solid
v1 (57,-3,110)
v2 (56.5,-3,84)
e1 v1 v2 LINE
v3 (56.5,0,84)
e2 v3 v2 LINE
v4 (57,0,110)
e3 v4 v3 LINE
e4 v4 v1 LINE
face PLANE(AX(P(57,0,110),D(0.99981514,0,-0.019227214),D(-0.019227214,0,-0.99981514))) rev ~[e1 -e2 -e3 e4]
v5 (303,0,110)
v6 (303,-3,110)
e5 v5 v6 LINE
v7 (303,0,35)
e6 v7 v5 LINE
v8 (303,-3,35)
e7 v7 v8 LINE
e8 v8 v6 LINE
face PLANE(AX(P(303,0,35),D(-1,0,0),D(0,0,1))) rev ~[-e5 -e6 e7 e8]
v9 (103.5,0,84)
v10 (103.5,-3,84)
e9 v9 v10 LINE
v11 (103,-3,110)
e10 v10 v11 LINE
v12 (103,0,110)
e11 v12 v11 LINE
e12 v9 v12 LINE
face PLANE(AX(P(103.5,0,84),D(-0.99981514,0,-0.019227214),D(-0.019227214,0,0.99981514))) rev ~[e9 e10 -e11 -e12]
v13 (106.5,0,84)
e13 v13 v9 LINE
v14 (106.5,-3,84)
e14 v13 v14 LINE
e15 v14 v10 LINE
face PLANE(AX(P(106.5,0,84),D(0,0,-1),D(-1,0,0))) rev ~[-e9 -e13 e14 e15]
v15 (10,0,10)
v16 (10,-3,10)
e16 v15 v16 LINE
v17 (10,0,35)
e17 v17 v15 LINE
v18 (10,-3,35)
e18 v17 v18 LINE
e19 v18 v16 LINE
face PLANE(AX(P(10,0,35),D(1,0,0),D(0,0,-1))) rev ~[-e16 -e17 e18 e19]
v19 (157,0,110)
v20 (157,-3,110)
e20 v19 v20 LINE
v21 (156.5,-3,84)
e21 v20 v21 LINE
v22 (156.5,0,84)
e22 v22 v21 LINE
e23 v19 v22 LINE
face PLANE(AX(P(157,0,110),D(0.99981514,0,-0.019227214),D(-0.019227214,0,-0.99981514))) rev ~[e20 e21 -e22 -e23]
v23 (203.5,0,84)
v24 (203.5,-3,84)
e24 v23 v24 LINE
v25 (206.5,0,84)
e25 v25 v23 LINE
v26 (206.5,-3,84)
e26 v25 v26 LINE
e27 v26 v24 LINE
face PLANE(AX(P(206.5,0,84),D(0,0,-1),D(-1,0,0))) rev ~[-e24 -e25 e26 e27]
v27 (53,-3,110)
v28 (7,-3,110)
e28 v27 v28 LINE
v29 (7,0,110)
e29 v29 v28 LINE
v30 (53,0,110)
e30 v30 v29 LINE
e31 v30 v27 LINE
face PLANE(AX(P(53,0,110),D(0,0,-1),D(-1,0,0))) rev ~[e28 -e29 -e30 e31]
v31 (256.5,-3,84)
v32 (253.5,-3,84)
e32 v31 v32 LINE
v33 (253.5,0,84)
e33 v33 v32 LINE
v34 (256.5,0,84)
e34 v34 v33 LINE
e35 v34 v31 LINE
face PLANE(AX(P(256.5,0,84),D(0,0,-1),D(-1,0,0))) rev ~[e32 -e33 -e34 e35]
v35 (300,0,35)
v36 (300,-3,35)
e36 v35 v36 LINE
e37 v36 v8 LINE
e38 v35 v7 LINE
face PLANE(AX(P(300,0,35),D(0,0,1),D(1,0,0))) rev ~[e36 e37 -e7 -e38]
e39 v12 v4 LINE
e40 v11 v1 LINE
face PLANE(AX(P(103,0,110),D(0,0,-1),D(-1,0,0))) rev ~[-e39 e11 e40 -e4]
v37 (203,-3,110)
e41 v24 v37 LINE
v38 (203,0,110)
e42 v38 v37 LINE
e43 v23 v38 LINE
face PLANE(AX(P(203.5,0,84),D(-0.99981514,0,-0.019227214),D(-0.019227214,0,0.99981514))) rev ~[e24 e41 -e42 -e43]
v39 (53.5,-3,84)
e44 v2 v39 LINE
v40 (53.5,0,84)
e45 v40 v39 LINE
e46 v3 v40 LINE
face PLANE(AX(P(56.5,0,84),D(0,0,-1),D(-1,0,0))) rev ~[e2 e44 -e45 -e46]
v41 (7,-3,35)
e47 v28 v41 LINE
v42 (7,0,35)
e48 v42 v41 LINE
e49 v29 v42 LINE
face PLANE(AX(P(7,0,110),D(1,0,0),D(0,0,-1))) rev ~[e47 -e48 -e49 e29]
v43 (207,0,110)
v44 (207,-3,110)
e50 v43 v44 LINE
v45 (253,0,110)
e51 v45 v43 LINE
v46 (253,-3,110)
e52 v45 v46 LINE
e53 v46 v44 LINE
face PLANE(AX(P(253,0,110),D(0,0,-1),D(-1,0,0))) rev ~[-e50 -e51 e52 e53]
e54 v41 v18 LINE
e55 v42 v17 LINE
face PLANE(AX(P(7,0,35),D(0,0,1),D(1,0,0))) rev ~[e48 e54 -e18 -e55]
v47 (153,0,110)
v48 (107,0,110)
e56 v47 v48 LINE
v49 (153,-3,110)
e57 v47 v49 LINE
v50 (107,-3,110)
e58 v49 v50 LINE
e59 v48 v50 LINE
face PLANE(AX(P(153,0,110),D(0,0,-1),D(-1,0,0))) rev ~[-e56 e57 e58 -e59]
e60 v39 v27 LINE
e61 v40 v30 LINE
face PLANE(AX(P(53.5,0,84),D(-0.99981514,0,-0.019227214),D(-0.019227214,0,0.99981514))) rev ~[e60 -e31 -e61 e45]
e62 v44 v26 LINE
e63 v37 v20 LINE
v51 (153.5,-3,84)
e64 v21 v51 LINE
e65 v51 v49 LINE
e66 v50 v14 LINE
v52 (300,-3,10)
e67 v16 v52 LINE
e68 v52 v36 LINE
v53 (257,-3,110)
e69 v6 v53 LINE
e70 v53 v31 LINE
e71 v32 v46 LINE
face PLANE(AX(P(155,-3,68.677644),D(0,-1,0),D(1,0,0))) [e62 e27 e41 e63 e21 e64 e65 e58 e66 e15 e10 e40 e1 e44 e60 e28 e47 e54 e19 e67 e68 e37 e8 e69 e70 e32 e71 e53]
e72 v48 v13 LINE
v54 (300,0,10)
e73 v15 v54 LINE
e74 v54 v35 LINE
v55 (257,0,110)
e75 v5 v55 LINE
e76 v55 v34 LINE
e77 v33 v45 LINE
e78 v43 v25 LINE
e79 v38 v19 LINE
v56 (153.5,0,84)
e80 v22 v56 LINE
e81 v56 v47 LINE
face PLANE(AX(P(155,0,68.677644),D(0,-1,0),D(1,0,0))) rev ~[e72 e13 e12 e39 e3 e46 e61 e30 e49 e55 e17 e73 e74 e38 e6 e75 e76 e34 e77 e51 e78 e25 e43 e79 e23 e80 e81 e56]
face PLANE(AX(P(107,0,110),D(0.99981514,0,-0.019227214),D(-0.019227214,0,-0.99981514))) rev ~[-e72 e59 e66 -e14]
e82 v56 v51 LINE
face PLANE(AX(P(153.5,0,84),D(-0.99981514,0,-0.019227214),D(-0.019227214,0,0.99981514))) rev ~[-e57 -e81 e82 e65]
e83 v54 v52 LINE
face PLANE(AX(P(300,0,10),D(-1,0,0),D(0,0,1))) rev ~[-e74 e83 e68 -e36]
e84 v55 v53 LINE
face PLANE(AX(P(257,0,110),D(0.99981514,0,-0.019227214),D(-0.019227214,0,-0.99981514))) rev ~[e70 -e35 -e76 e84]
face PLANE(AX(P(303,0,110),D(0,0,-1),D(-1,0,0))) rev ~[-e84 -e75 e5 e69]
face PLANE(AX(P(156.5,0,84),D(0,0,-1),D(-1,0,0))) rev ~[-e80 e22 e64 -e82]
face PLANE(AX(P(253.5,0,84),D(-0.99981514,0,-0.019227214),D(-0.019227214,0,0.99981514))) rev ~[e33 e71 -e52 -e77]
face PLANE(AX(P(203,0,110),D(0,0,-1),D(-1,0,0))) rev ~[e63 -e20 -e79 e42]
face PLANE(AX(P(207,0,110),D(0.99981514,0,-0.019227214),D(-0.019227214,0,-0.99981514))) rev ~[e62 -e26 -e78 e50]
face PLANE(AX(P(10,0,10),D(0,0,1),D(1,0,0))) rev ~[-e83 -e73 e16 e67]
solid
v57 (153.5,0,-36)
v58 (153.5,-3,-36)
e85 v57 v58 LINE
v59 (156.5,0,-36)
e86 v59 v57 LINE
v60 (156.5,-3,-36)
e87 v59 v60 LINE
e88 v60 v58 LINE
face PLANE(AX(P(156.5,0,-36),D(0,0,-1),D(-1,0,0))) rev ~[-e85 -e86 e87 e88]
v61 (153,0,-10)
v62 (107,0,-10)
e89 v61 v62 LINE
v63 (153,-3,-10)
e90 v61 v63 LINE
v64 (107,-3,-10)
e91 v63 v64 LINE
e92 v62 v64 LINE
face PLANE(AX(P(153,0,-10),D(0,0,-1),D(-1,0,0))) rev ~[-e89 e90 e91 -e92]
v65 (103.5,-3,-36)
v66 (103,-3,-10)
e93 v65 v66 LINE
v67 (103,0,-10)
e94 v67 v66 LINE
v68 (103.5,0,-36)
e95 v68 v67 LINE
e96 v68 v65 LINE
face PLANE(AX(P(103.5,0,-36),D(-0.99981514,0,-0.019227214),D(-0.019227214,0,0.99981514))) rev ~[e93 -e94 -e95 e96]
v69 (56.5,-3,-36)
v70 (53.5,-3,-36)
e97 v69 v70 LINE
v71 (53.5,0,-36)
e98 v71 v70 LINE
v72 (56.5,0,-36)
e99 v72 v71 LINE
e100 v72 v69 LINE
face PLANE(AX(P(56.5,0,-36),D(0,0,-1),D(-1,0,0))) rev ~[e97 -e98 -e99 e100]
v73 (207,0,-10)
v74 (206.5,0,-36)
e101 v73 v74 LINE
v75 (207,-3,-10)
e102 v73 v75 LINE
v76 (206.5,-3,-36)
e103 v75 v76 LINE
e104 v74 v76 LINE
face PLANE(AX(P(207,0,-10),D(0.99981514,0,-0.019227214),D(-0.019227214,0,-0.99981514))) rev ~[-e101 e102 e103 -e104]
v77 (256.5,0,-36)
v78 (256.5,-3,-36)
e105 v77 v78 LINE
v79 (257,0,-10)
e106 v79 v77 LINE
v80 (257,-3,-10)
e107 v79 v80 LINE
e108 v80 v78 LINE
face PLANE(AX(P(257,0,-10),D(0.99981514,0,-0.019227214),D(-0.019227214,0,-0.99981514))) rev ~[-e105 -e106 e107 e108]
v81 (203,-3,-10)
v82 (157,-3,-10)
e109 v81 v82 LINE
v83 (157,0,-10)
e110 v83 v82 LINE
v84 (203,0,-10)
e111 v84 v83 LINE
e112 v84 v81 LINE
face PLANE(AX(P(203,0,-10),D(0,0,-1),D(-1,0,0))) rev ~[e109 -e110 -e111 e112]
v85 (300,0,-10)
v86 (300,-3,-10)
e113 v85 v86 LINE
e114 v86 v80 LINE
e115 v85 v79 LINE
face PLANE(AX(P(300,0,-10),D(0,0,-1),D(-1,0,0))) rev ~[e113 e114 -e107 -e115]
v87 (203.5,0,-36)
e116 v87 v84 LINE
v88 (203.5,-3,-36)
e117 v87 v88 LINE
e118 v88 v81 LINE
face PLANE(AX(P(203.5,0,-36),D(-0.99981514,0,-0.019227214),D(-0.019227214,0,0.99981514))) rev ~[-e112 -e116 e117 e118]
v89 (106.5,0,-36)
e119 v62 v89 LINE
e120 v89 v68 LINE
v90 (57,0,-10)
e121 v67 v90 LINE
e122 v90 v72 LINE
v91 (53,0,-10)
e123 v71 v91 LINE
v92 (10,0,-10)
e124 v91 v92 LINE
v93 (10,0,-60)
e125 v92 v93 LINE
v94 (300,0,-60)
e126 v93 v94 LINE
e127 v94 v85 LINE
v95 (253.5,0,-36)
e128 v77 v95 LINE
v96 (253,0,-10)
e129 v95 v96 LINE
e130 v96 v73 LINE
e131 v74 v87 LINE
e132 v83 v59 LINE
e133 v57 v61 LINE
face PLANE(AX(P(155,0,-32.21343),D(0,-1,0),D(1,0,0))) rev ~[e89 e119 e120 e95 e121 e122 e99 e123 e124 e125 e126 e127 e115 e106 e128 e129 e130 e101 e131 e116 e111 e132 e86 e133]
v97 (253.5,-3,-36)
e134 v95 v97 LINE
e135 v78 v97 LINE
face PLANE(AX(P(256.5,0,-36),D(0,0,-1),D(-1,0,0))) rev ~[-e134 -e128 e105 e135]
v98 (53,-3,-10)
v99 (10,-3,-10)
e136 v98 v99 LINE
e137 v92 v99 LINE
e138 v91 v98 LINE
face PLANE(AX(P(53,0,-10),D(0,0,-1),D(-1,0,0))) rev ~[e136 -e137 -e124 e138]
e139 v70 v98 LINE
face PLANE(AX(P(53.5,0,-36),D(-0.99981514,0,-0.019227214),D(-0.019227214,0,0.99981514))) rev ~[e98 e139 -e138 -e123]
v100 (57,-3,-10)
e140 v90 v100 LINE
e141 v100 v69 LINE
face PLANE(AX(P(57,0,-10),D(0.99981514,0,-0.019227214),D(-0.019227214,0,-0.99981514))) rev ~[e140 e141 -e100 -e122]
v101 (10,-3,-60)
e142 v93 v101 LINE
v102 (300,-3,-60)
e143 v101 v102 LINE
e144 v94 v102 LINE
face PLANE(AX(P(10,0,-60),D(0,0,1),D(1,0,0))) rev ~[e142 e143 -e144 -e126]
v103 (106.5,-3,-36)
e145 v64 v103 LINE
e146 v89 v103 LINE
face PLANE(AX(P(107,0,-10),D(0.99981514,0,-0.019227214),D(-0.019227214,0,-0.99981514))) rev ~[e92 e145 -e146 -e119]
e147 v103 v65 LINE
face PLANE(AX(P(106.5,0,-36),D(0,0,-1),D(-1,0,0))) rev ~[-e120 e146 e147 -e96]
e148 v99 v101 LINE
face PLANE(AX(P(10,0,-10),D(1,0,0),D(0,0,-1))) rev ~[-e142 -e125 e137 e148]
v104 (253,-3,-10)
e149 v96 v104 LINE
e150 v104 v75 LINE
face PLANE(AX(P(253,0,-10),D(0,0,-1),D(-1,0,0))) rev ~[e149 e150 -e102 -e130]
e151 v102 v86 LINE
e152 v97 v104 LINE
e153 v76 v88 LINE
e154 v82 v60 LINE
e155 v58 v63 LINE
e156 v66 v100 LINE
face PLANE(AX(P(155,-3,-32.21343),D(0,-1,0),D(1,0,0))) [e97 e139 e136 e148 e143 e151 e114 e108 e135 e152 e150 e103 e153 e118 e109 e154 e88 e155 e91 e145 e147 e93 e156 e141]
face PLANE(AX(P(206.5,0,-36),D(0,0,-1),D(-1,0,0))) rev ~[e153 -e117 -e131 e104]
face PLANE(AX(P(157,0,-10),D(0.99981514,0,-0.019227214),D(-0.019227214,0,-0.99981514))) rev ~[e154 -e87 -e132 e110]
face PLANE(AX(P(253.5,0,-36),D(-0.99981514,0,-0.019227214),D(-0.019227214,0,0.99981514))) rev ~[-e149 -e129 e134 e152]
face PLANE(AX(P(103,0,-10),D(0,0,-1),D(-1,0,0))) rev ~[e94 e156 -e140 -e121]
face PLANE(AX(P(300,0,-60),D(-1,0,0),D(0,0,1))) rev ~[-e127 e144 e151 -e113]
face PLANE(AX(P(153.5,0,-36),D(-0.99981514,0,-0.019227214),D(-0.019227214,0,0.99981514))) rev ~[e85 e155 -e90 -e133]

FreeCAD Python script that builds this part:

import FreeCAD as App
import Part
import Sketcher
from FreeCAD import Vector

doc = App.newDocument("Part")
params = doc.addObject("Spreadsheet::Sheet", "Params")
for row, (alias, value) in enumerate([
    ("sketch1_width", "290 mm"),
    ("sketch1_width2", "3 mm"),
    ("sketch1_width3", "46 mm"),
    ("sketch1_height", "25 mm"),
    ("sketch1_height2", "75 mm"),
    ("pad1_length", "3 mm"),
    ("sketch2_width", "290 mm"),
    ("sketch2_width2", "43 mm"),
    ("sketch2_width3", "3 mm"),
    ("sketch2_width4", "46 mm"),
    ("sketch2_height", "50 mm"),
    ("pad2_length", "3 mm"),
], start=1):
    params.set(f"A{row}", alias)
    params.set(f"B{row}", "=" + value)
    params.setAlias(f"B{row}", alias)

body = doc.addObject("PartDesign::Body", "Body")

sketch1 = body.newObject("Sketcher::SketchObject", "Sketch")
sketch1.AttachmentSupport = (doc.getObject("XZ_Plane"), [""])
sketch1.MapMode = "FlatFace"
sketch1.addGeometry([
    Part.LineSegment(Vector(10, 10, 0), Vector(300, 10, 0)),
    Part.LineSegment(Vector(300, 10, 0), Vector(300, 35, 0)),
    Part.LineSegment(Vector(300, 35, 0), Vector(303, 35, 0)),
    Part.LineSegment(Vector(303, 35, 0), Vector(303, 110, 0)),
    Part.LineSegment(Vector(303, 110, 0), Vector(257, 110, 0)),
    Part.LineSegment(Vector(257, 110, 0), Vector(256.5, 84, 0)),
    Part.LineSegment(Vector(256.5, 84, 0), Vector(253.5, 84, 0)),
    Part.LineSegment(Vector(253.5, 84, 0), Vector(253, 110, 0)),
    Part.LineSegment(Vector(253, 110, 0), Vector(207, 110, 0)),
    Part.LineSegment(Vector(207, 110, 0), Vector(206.5, 84, 0)),
    Part.LineSegment(Vector(206.5, 84, 0), Vector(203.5, 84, 0)),
    Part.LineSegment(Vector(203.5, 84, 0), Vector(203, 110, 0)),
    Part.LineSegment(Vector(203, 110, 0), Vector(157, 110, 0)),
    Part.LineSegment(Vector(157, 110, 0), Vector(156.5, 84, 0)),
    Part.LineSegment(Vector(156.5, 84, 0), Vector(153.5, 84, 0)),
    Part.LineSegment(Vector(153.5, 84, 0), Vector(153, 110, 0)),
    Part.LineSegment(Vector(153, 110, 0), Vector(107, 110, 0)),
    Part.LineSegment(Vector(107, 110, 0), Vector(106.5, 84, 0)),
    Part.LineSegment(Vector(106.5, 84, 0), Vector(103.5, 84, 0)),
    Part.LineSegment(Vector(103.5, 84, 0), Vector(103, 110, 0)),
    Part.LineSegment(Vector(103, 110, 0), Vector(57, 110, 0)),
    Part.LineSegment(Vector(57, 110, 0), Vector(56.5, 84, 0)),
    Part.LineSegment(Vector(56.5, 84, 0), Vector(53.5, 84, 0)),
    Part.LineSegment(Vector(53.5, 84, 0), Vector(53, 110, 0)),
    Part.LineSegment(Vector(53, 110, 0), Vector(7, 110, 0)),
    Part.LineSegment(Vector(7, 110, 0), Vector(7, 35, 0)),
    Part.LineSegment(Vector(7, 35, 0), Vector(10, 35, 0)),
    Part.LineSegment(Vector(10, 35, 0), Vector(10, 10, 0)),
], False)
sketch1.addConstraint([
    Sketcher.Constraint("Coincident", 0, 2, 1, 1),
    Sketcher.Constraint("Coincident", 1, 2, 2, 1),
    Sketcher.Constraint("Coincident", 2, 2, 3, 1),
    Sketcher.Constraint("Coincident", 3, 2, 4, 1),
    Sketcher.Constraint("Coincident", 4, 2, 5, 1),
    Sketcher.Constraint("Coincident", 5, 2, 6, 1),
    Sketcher.Constraint("Coincident", 6, 2, 7, 1),
    Sketcher.Constraint("Coincident", 7, 2, 8, 1),
    Sketcher.Constraint("Coincident", 8, 2, 9, 1),
    Sketcher.Constraint("Coincident", 9, 2, 10, 1),
    Sketcher.Constraint("Coincident", 10, 2, 11, 1),
    Sketcher.Constraint("Coincident", 11, 2, 12, 1),
    Sketcher.Constraint("Coincident", 12, 2, 13, 1),
    Sketcher.Constraint("Coincident", 13, 2, 14, 1),
    Sketcher.Constraint("Coincident", 14, 2, 15, 1),
    Sketcher.Constraint("Coincident", 15, 2, 16, 1),
    Sketcher.Constraint("Coincident", 16, 2, 17, 1),
    Sketcher.Constraint("Coincident", 17, 2, 18, 1),
    Sketcher.Constraint("Coincident", 18, 2, 19, 1),
    Sketcher.Constraint("Coincident", 19, 2, 20, 1),
    Sketcher.Constraint("Coincident", 20, 2, 21, 1),
    Sketcher.Constraint("Coincident", 21, 2, 22, 1),
    Sketcher.Constraint("Coincident", 22, 2, 23, 1),
    Sketcher.Constraint("Coincident", 23, 2, 24, 1),
    Sketcher.Constraint("Coincident", 24, 2, 25, 1),
    Sketcher.Constraint("Coincident", 25, 2, 26, 1),
    Sketcher.Constraint("Coincident", 26, 2, 27, 1),
    Sketcher.Constraint("Coincident", 27, 2, 0, 1),
    Sketcher.Constraint("Horizontal", 0),
    Sketcher.Constraint("Vertical", 1),
    Sketcher.Constraint("Horizontal", 2),
    Sketcher.Constraint("Vertical", 3),
    Sketcher.Constraint("Horizontal", 4),
    Sketcher.Constraint("Horizontal", 6),
    Sketcher.Constraint("Horizontal", 8),
    Sketcher.Constraint("Horizontal", 10),
    Sketcher.Constraint("Horizontal", 12),
    Sketcher.Constraint("Horizontal", 14),
    Sketcher.Constraint("Horizontal", 16),
    Sketcher.Constraint("Horizontal", 18),
    Sketcher.Constraint("Horizontal", 20),
    Sketcher.Constraint("Horizontal", 22),
    Sketcher.Constraint("Horizontal", 24),
    Sketcher.Constraint("Vertical", 25),
    Sketcher.Constraint("Horizontal", 26),
    Sketcher.Constraint("Vertical", 27),
    Sketcher.Constraint("Parallel", 5, 9),
    Sketcher.Constraint("Parallel", 7, 11),
    Sketcher.Constraint("Parallel", 9, 13),
    Sketcher.Constraint("Parallel", 11, 15),
    Sketcher.Constraint("Parallel", 13, 17),
    Sketcher.Constraint("Parallel", 15, 19),
    Sketcher.Constraint("Parallel", 17, 21),
    Sketcher.Constraint("Parallel", 19, 23),
    Sketcher.Constraint("Horizontal", 4, 2, 7, 2),
    Sketcher.Constraint("Horizontal", 6, 2, 9, 2),
    Sketcher.Constraint("Horizontal", 8, 2, 11, 2),
    Sketcher.Constraint("Horizontal", 10, 2, 13, 2),
    Sketcher.Constraint("Horizontal", 12, 2, 15, 2),
    Sketcher.Constraint("Horizontal", 14, 2, 17, 2),
    Sketcher.Constraint("Horizontal", 16, 2, 19, 2),
    Sketcher.Constraint("Horizontal", 18, 2, 21, 2),
    Sketcher.Constraint("Horizontal", 20, 2, 23, 2),
    Sketcher.Constraint("Horizontal", 2, 2, 25, 2),
    Sketcher.Constraint("Equal", 2, 6),
    Sketcher.Constraint("Equal", 4, 8),
    Sketcher.Constraint("Equal", 6, 10),
    Sketcher.Constraint("Equal", 8, 12),
    Sketcher.Constraint("Equal", 10, 14),
    Sketcher.Constraint("Equal", 12, 16),
    Sketcher.Constraint("Equal", 14, 18),
    Sketcher.Constraint("Equal", 16, 20),
    Sketcher.Constraint("Equal", 18, 22),
    Sketcher.Constraint("Equal", 20, 24),
    Sketcher.Constraint("Equal", 22, 26),
    Sketcher.Constraint("Equal", 5, 7),
    Sketcher.Constraint("DistanceX", 0, 1, 0, 2, 290.0),
    Sketcher.Constraint("DistanceX", 2, 1, 2, 2, 3.0),
    Sketcher.Constraint("DistanceX", 4, 2, 4, 1, 46.0),
    Sketcher.Constraint("DistanceY", 1, 1, 1, 2, 25.0),
    Sketcher.Constraint("DistanceY", 3, 1, 3, 2, 75.0),
    Sketcher.Constraint("DistanceX", -1, 1, 0, 2, 300.0),
    Sketcher.Constraint("DistanceY", -1, 1, 0, 2, 10.0),
    Sketcher.Constraint("DistanceY", -1, 1, 5, 2, 84.0),
])
sketch1.setExpression("Constraints[76]", "Params.sketch1_width")
sketch1.setExpression("Constraints[77]", "Params.sketch1_width2")
sketch1.setExpression("Constraints[78]", "Params.sketch1_width3")
sketch1.setExpression("Constraints[79]", "Params.sketch1_height")
sketch1.setExpression("Constraints[80]", "Params.sketch1_height2")
pad1 = body.newObject("PartDesign::Pad", "Pad")
pad1.Profile = sketch1
pad1.setExpression("Length", "Params.pad1_length")
body2 = doc.addObject("PartDesign::Body", "Body001")

sketch2 = body2.newObject("Sketcher::SketchObject", "Sketch001")
sketch2.AttachmentSupport = (doc.getObject("XZ_Plane001"), [""])
sketch2.MapMode = "FlatFace"
sketch2.addGeometry([
    Part.LineSegment(Vector(10, -10, 0), Vector(10, -60, 0)),
    Part.LineSegment(Vector(10, -60, 0), Vector(300, -60, 0)),
    Part.LineSegment(Vector(300, -60, 0), Vector(300, -10, 0)),
    Part.LineSegment(Vector(300, -10, 0), Vector(257, -10, 0)),
    Part.LineSegment(Vector(257, -10, 0), Vector(256.5, -36, 0)),
    Part.LineSegment(Vector(256.5, -36, 0), Vector(253.5, -36, 0)),
    Part.LineSegment(Vector(253.5, -36, 0), Vector(253, -10, 0)),
    Part.LineSegment(Vector(253, -10, 0), Vector(207, -10, 0)),
    Part.LineSegment(Vector(207, -10, 0), Vector(206.5, -36, 0)),
    Part.LineSegment(Vector(206.5, -36, 0), Vector(203.5, -36, 0)),
    Part.LineSegment(Vector(203.5, -36, 0), Vector(203, -10, 0)),
    Part.LineSegment(Vector(203, -10, 0), Vector(157, -10, 0)),
    Part.LineSegment(Vector(157, -10, 0), Vector(156.5, -36, 0)),
    Part.LineSegment(Vector(156.5, -36, 0), Vector(153.5, -36, 0)),
    Part.LineSegment(Vector(153.5, -36, 0), Vector(153, -10, 0)),
    Part.LineSegment(Vector(153, -10, 0), Vector(107, -10, 0)),
    Part.LineSegment(Vector(107, -10, 0), Vector(106.5, -36, 0)),
    Part.LineSegment(Vector(106.5, -36, 0), Vector(103.5, -36, 0)),
    Part.LineSegment(Vector(103.5, -36, 0), Vector(103, -10, 0)),
    Part.LineSegment(Vector(103, -10, 0), Vector(57, -10, 0)),
    Part.LineSegment(Vector(57, -10, 0), Vector(56.5, -36, 0)),
    Part.LineSegment(Vector(56.5, -36, 0), Vector(53.5, -36, 0)),
    Part.LineSegment(Vector(53.5, -36, 0), Vector(53, -10, 0)),
    Part.LineSegment(Vector(53, -10, 0), Vector(10, -10, 0)),
], False)
sketch2.addConstraint([
    Sketcher.Constraint("Coincident", 0, 2, 1, 1),
    Sketcher.Constraint("Coincident", 1, 2, 2, 1),
    Sketcher.Constraint("Coincident", 2, 2, 3, 1),
    Sketcher.Constraint("Coincident", 3, 2, 4, 1),
    Sketcher.Constraint("Coincident", 4, 2, 5, 1),
    Sketcher.Constraint("Coincident", 5, 2, 6, 1),
    Sketcher.Constraint("Coincident", 6, 2, 7, 1),
    Sketcher.Constraint("Coincident", 7, 2, 8, 1),
    Sketcher.Constraint("Coincident", 8, 2, 9, 1),
    Sketcher.Constraint("Coincident", 9, 2, 10, 1),
    Sketcher.Constraint("Coincident", 10, 2, 11, 1),
    Sketcher.Constraint("Coincident", 11, 2, 12, 1),
    Sketcher.Constraint("Coincident", 12, 2, 13, 1),
    Sketcher.Constraint("Coincident", 13, 2, 14, 1),
    Sketcher.Constraint("Coincident", 14, 2, 15, 1),
    Sketcher.Constraint("Coincident", 15, 2, 16, 1),
    Sketcher.Constraint("Coincident", 16, 2, 17, 1),
    Sketcher.Constraint("Coincident", 17, 2, 18, 1),
    Sketcher.Constraint("Coincident", 18, 2, 19, 1),
    Sketcher.Constraint("Coincident", 19, 2, 20, 1),
    Sketcher.Constraint("Coincident", 20, 2, 21, 1),
    Sketcher.Constraint("Coincident", 21, 2, 22, 1),
    Sketcher.Constraint("Coincident", 22, 2, 23, 1),
    Sketcher.Constraint("Coincident", 23, 2, 0, 1),
    Sketcher.Constraint("Vertical", 0),
    Sketcher.Constraint("Horizontal", 1),
    Sketcher.Constraint("Vertical", 2),
    Sketcher.Constraint("Horizontal", 3),
    Sketcher.Constraint("Horizontal", 5),
    Sketcher.Constraint("Horizontal", 7),
    Sketcher.Constraint("Horizontal", 9),
    Sketcher.Constraint("Horizontal", 11),
    Sketcher.Constraint("Horizontal", 13),
    Sketcher.Constraint("Horizontal", 15),
    Sketcher.Constraint("Horizontal", 17),
    Sketcher.Constraint("Horizontal", 19),
    Sketcher.Constraint("Horizontal", 21),
    Sketcher.Constraint("Horizontal", 23),
    Sketcher.Constraint("Parallel", 4, 8),
    Sketcher.Constraint("Parallel", 6, 10),
    Sketcher.Constraint("Parallel", 8, 12),
    Sketcher.Constraint("Parallel", 10, 14),
    Sketcher.Constraint("Parallel", 12, 16),
    Sketcher.Constraint("Parallel", 14, 18),
    Sketcher.Constraint("Parallel", 16, 20),
    Sketcher.Constraint("Parallel", 18, 22),
    Sketcher.Constraint("Horizontal", 3, 2, 6, 2),
    Sketcher.Constraint("Horizontal", 5, 2, 8, 2),
    Sketcher.Constraint("Horizontal", 7, 2, 10, 2),
    Sketcher.Constraint("Horizontal", 9, 2, 12, 2),
    Sketcher.Constraint("Horizontal", 11, 2, 14, 2),
    Sketcher.Constraint("Horizontal", 13, 2, 16, 2),
    Sketcher.Constraint("Horizontal", 15, 2, 18, 2),
    Sketcher.Constraint("Horizontal", 17, 2, 20, 2),
    Sketcher.Constraint("Horizontal", 19, 2, 22, 2),
    Sketcher.Constraint("Equal", 5, 9),
    Sketcher.Constraint("Equal", 7, 11),
    Sketcher.Constraint("Equal", 9, 13),
    Sketcher.Constraint("Equal", 11, 15),
    Sketcher.Constraint("Equal", 13, 17),
    Sketcher.Constraint("Equal", 15, 19),
    Sketcher.Constraint("Equal", 17, 21),
    Sketcher.Constraint("Equal", 3, 23),
    Sketcher.Constraint("Equal", 4, 6),
    Sketcher.Constraint("DistanceX", 1, 1, 1, 2, 290.0),
    Sketcher.Constraint("DistanceX", 3, 2, 3, 1, 43.0),
    Sketcher.Constraint("DistanceX", 5, 2, 5, 1, 3.0),
    Sketcher.Constraint("DistanceX", 7, 2, 7, 1, 46.0),
    Sketcher.Constraint("DistanceY", 0, 2, 0, 1, 50.0),
    Sketcher.Constraint("DistanceX", -1, 1, 0, 2, 10.0),
    Sketcher.Constraint("DistanceY", 0, 2, -1, 1, 60.0),
    Sketcher.Constraint("DistanceY", 4, 2, -1, 1, 36.0),
])
sketch2.setExpression("Constraints[64]", "Params.sketch2_width")
sketch2.setExpression("Constraints[65]", "Params.sketch2_width2")
sketch2.setExpression("Constraints[66]", "Params.sketch2_width3")
sketch2.setExpression("Constraints[67]", "Params.sketch2_width4")
sketch2.setExpression("Constraints[68]", "Params.sketch2_height")
pad2 = body2.newObject("PartDesign::Pad", "Pad001")
pad2.Profile = sketch2
pad2.setExpression("Length", "Params.pad2_length")

doc.recompute()
